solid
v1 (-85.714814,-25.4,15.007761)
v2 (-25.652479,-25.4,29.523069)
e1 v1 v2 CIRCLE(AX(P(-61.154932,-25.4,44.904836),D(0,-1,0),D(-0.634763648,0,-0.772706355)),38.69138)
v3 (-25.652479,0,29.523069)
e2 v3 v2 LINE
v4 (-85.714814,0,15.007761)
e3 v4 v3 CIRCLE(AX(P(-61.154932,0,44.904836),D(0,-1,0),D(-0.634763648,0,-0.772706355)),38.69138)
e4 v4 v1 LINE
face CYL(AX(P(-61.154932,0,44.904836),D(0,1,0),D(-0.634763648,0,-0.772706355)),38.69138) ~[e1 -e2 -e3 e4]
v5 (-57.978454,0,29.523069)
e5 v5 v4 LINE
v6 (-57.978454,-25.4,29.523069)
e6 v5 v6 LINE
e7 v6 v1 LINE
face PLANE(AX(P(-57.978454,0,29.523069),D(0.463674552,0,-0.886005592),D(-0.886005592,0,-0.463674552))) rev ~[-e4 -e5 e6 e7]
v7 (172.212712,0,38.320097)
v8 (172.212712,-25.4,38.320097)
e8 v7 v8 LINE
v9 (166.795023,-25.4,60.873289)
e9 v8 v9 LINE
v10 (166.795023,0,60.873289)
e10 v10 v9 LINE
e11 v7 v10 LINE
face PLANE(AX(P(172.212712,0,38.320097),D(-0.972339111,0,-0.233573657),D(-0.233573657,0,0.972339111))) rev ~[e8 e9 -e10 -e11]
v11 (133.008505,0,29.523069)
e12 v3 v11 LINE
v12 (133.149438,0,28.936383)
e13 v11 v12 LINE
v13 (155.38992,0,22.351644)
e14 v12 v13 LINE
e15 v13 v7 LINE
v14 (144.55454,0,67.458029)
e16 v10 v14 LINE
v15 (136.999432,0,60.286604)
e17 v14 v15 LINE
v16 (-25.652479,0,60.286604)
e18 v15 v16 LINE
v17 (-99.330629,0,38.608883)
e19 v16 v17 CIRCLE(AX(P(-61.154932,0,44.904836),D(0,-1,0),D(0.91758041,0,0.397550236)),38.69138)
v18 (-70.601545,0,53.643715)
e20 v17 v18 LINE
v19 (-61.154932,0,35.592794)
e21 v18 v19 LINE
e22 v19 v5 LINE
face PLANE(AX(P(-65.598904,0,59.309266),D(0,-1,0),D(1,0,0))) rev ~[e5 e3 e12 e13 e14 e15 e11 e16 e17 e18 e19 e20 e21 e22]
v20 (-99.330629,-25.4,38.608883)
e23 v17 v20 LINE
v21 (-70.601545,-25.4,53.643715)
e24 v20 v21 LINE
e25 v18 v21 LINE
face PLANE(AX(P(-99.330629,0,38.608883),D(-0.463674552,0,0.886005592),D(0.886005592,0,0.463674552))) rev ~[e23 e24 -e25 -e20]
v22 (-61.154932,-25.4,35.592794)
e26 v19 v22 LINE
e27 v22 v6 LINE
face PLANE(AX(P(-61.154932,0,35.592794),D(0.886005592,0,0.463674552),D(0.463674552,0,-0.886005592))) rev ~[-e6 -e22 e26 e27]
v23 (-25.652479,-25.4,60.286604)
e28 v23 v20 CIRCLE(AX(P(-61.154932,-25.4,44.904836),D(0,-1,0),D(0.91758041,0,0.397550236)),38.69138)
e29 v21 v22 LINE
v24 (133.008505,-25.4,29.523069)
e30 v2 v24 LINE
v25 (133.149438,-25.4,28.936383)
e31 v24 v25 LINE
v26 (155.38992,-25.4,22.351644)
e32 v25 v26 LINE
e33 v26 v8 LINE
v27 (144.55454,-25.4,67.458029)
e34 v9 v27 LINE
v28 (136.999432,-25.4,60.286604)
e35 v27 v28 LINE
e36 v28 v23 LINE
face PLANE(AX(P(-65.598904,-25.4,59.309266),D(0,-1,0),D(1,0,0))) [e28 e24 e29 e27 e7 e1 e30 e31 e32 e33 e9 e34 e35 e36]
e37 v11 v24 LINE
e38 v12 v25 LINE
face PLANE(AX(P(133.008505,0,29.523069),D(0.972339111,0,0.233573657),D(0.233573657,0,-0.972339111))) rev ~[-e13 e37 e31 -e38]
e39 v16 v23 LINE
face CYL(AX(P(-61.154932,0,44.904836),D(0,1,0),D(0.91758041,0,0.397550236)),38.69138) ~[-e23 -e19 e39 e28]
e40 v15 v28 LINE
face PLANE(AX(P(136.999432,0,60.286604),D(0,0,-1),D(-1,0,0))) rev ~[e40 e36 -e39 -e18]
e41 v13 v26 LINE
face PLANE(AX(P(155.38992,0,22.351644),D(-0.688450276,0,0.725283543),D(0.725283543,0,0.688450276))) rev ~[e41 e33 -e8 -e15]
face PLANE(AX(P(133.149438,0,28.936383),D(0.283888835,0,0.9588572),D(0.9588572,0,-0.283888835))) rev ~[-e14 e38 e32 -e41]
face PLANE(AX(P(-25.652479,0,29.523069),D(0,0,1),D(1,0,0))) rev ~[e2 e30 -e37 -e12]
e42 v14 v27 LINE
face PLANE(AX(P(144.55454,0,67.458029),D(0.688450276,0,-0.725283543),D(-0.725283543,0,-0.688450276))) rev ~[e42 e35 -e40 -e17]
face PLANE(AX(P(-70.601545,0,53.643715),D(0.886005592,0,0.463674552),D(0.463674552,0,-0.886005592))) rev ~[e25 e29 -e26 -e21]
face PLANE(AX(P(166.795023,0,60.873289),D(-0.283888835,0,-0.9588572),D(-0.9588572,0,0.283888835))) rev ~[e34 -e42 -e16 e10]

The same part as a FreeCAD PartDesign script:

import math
import FreeCAD as App
import Part
import Sketcher
from FreeCAD import Vector
Q = App.Units.Quantity

doc = App.newDocument("Part")
body = doc.addObject("PartDesign::Body", "Body")

# Sketch on XZ plane
sketch1 = body.newObject("Sketcher::SketchObject", "Sketch")
sketch1.AttachmentSupport = (doc.getObject("XZ_Plane"), [""])
sketch1.MapMode = "FlatFace"
sketch1.addGeometry([
    Part.ArcOfCircle(Part.Circle(Vector(-61.154932, 44.904836, 0), Vector(0, 0, 1), 38.69138), math.radians(23.425121), math.radians(189.364949)),  # 0
    Part.LineSegment(Vector(-99.330629, 38.608883, 0), Vector(-70.601545, 53.643715, 0)),  # 1
    Part.LineSegment(Vector(-70.601545, 53.643715, 0), Vector(-61.154932, 35.592794, 0)),  # 2
    Part.LineSegment(Vector(-61.154932, 35.592794, 0), Vector(-57.978454, 29.523069, 0)),  # 3
    Part.LineSegment(Vector(-57.978454, 29.523069, 0), Vector(-85.714814, 15.007761, 0)),  # 4
    Part.ArcOfCircle(Part.Circle(Vector(-61.154932, 44.904836, 0), Vector(0, 0, 1), 38.69138), math.radians(-129.402457), math.radians(-23.425121)),  # 5
    Part.LineSegment(Vector(-25.652479, 29.523069, 0), Vector(133.008505, 29.523069, 0)),  # 6
    Part.LineSegment(Vector(133.008505, 29.523069, 0), Vector(133.149438, 28.936383, 0)),  # 7
    Part.LineSegment(Vector(133.149438, 28.936383, 0), Vector(155.38992, 22.351644, 0)),  # 8
    Part.LineSegment(Vector(155.38992, 22.351644, 0), Vector(172.212712, 38.320097, 0)),  # 9
    Part.LineSegment(Vector(172.212712, 38.320097, 0), Vector(166.795023, 60.873289, 0)),  # 10
    Part.LineSegment(Vector(166.795023, 60.873289, 0), Vector(144.55454, 67.458029, 0)),  # 11
    Part.LineSegment(Vector(144.55454, 67.458029, 0), Vector(136.999432, 60.286604, 0)),  # 12
    Part.LineSegment(Vector(136.999432, 60.286604, 0), Vector(-25.652479, 60.286604, 0)),  # 13
], False)
sketch1.addConstraint([
    Sketcher.Constraint("Coincident", 0, 2, 1, 1),
    Sketcher.Constraint("Coincident", 1, 2, 2, 1),
    Sketcher.Constraint("Coincident", 2, 2, 3, 1),
    Sketcher.Constraint("Coincident", 3, 2, 4, 1),
    Sketcher.Constraint("Coincident", 4, 2, 5, 1),
    Sketcher.Constraint("Coincident", 5, 2, 6, 1),
    Sketcher.Constraint("Coincident", 6, 2, 7, 1),
    Sketcher.Constraint("Coincident", 7, 2, 8, 1),
    Sketcher.Constraint("Coincident", 8, 2, 9, 1),
    Sketcher.Constraint("Coincident", 9, 2, 10, 1),
    Sketcher.Constraint("Coincident", 10, 2, 11, 1),
    Sketcher.Constraint("Coincident", 11, 2, 12, 1),
    Sketcher.Constraint("Coincident", 12, 2, 13, 1),
    Sketcher.Constraint("Coincident", 13, 2, 0, 1),
    Sketcher.Constraint("Horizontal", 6),
    Sketcher.Constraint("Horizontal", 13),
    Sketcher.Constraint("Coincident", 5, 3, 0, 3),
    Sketcher.Constraint("Equal", 0, 5),
    Sketcher.Constraint("Perpendicular", 1, 2),
    Sketcher.Constraint("Parallel", 2, 3),
    Sketcher.Constraint("Perpendicular", 3, 4),
    Sketcher.Constraint("Parallel", 7, 10),
    Sketcher.Constraint("Parallel", 8, 11),
    Sketcher.Constraint("Parallel", 9, 12),
    Sketcher.Constraint("Horizontal", 3, 2, 5, 2),
    Sketcher.Constraint("Vertical", 5, 3, 2, 2),
    Sketcher.Constraint("Vertical", 5, 2, 13, 2),
    Sketcher.Constraint("Equal", 8, 9),
    Sketcher.Constraint("Equal", 9, 10),
    Sketcher.Constraint("Equal", 10, 11),
    Sketcher.Constraint("Radius", 0, Q("38.69138 mm")),
    Sketcher.Constraint("Distance", 1, Q("32.425398 mm")),
    Sketcher.Constraint("DistanceX", 13, 2, 13, 1, Q("162.651911 mm")),
    Sketcher.Constraint("DistanceX", 5, 2, 8, 2, Q("181.042399 mm")),
    Sketcher.Constraint("DistanceX", 5, 2, 10, 2, Q("192.447502 mm")),
    Sketcher.Constraint("Distance", 2, Q("20.373371 mm")),
    Sketcher.Constraint("Distance", 4, Q("31.304949 mm")),
    Sketcher.Constraint("Distance", 8, Q("23.194781 mm")),
    Sketcher.Constraint("DistanceX", 6, 1, 6, 2, Q("158.660984 mm")),
    Sketcher.Constraint("DistanceX", 0, 3, -1, 1, Q("61.154932 mm")),
    Sketcher.Constraint("DistanceX", 0, 2, -1, 1, Q("99.330629 mm")),
    Sketcher.Constraint("DistanceY", -1, 1, 3, 2, Q("29.523069 mm")),
    Sketcher.Constraint("DistanceY", -1, 1, 10, 2, Q("60.873289 mm")),
])
pad1 = body.newObject("PartDesign::Pad", "Pad")
pad1.Profile = sketch1
pad1.Length = Q("1 in")

doc.recompute()
